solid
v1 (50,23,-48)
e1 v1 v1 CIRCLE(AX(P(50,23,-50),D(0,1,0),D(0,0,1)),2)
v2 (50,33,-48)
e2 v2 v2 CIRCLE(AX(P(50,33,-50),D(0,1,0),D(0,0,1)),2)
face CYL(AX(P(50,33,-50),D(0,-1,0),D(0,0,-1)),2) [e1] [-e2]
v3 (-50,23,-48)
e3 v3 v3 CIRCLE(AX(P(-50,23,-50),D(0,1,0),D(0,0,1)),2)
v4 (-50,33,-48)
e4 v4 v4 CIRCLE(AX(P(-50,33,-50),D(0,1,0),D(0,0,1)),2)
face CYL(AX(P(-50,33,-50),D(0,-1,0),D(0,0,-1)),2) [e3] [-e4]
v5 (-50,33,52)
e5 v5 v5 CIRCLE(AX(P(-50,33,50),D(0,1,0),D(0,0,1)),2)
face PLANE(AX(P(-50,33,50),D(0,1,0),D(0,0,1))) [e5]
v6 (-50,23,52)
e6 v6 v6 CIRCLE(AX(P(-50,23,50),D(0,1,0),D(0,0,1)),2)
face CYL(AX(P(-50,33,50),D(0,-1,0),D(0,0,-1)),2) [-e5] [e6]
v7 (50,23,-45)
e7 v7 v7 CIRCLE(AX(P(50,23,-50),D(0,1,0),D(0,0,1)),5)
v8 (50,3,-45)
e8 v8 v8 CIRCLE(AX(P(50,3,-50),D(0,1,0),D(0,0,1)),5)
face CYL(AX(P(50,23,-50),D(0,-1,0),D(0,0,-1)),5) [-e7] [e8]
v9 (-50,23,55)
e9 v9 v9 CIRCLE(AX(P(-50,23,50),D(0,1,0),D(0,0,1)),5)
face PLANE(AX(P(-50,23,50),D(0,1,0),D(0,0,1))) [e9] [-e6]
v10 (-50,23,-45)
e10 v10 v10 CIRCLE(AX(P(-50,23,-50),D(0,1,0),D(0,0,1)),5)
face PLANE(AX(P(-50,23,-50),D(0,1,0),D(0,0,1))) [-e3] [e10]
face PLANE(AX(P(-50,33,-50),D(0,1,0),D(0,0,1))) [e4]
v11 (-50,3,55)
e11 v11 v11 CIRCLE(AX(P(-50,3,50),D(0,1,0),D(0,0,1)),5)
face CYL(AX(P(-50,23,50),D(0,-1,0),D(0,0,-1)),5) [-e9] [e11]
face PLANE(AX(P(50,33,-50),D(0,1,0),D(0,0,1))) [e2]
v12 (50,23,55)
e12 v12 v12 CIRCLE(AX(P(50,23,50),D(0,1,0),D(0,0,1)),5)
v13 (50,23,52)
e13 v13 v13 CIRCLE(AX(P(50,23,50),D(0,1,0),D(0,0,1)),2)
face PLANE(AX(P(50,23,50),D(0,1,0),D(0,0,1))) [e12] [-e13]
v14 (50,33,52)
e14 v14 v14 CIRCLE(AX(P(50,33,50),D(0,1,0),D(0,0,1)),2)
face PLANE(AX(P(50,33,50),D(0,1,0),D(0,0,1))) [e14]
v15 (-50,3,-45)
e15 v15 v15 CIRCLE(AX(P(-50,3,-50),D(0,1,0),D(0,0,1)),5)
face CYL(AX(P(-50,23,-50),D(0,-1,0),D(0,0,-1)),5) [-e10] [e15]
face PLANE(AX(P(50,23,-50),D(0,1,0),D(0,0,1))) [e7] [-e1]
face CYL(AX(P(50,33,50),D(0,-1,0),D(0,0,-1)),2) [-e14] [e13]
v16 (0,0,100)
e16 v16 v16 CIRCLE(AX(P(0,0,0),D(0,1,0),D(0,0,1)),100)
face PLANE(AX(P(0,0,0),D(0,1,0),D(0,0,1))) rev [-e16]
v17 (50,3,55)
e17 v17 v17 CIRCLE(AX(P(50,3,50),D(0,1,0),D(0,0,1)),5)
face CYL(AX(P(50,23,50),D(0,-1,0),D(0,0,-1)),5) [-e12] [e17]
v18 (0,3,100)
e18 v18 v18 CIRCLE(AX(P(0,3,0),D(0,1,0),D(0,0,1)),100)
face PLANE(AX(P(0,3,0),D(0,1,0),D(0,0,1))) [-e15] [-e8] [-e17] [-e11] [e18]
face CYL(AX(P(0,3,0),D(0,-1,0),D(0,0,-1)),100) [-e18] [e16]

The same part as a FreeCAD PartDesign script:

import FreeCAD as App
import Part
import Sketcher

doc = App.newDocument("Part")
body = doc.addObject("PartDesign::Body", "Body")

# Sketch on XZ plane
sketch1 = doc.addObject("Sketcher::SketchObject", "Sketch")
body.addObject(sketch1)
sketch1.AttachmentSupport = (doc.XZ_Plane, [""])
sketch1.MapMode = "FlatFace"
sketch1.addGeometry(Part.Circle(App.Vector(0, 0, 0), App.Vector(0, 0, 1), 100), False)
sketch1.addConstraint(Sketcher.Constraint("Coincident", 0, 3, -1, 1))
sketch1.addConstraint(Sketcher.Constraint("Diameter", 0, 200.0))
pad1 = doc.addObject("PartDesign::Pad", "Pad")
body.addObject(pad1)
pad1.Profile = sketch1
pad1.Length = 3
pad1.Reversed = True

# Sketch on XZ plane
sketch2 = doc.addObject("Sketcher::SketchObject", "Sketch001")
body.addObject(sketch2)
sketch2.AttachmentSupport = (doc.XZ_Plane, [""])
sketch2.MapMode = "FlatFace"
sketch2.AttachmentOffset = App.Placement(App.Vector(0, 0, -3), App.Rotation())
sketch2.addGeometry(Part.Circle(App.Vector(-50, -50, 0), App.Vector(0, 0, 1), 5), False)
sketch2.addGeometry(Part.Circle(App.Vector(50, -50, 0), App.Vector(0, 0, 1), 5), False)
sketch2.addGeometry(Part.Circle(App.Vector(50, 50, 0), App.Vector(0, 0, 1), 5), False)
sketch2.addGeometry(Part.Circle(App.Vector(-50, 50, 0), App.Vector(0, 0, 1), 5), False)
sketch2.addConstraint(Sketcher.Constraint("Equal", 0, 1))
sketch2.addConstraint(Sketcher.Constraint("Equal", 1, 2))
sketch2.addConstraint(Sketcher.Constraint("Equal", 2, 3))
sketch2.addConstraint(Sketcher.Constraint("Symmetric", 0, 3, 2, 3, -1, 1))
sketch2.addConstraint(Sketcher.Constraint("Symmetric", 1, 3, 3, 3, -1, 1))
sketch2.addConstraint(Sketcher.Constraint("Symmetric", 0, 3, 1, 3, -2))
sketch2.addConstraint(Sketcher.Constraint("Diameter", 0, 10.0))
sketch2.addConstraint(Sketcher.Constraint("DistanceX", 0, 3, -1, 1, 50.0))
sketch2.addConstraint(Sketcher.Constraint("DistanceY", 0, 3, -1, 1, 50.0))
pad2 = doc.addObject("PartDesign::Pad", "Pad001")
body.addObject(pad2)
pad2.Profile = sketch2
pad2.Length = 20
pad2.Reversed = True

# Sketch on XZ plane
sketch3 = doc.addObject("Sketcher::SketchObject", "Sketch002")
body.addObject(sketch3)
sketch3.AttachmentSupport = (doc.XZ_Plane, [""])
sketch3.MapMode = "FlatFace"
sketch3.AttachmentOffset = App.Placement(App.Vector(0, 0, -23), App.Rotation())
sketch3.addGeometry(Part.Circle(App.Vector(50, 50, 0), App.Vector(0, 0, 1), 2), False)
sketch3.addGeometry(Part.Circle(App.Vector(-50, 50, 0), App.Vector(0, 0, 1), 2), False)
sketch3.addGeometry(Part.Circle(App.Vector(-50, -50, 0), App.Vector(0, 0, 1), 2), False)
sketch3.addGeometry(Part.Circle(App.Vector(50, -50, 0), App.Vector(0, 0, 1), 2), False)
sketch3.addConstraint(Sketcher.Constraint("Equal", 0, 1))
sketch3.addConstraint(Sketcher.Constraint("Equal", 1, 2))
sketch3.addConstraint(Sketcher.Constraint("Equal", 2, 3))
sketch3.addConstraint(Sketcher.Constraint("Symmetric", 0, 3, 2, 3, -1, 1))
sketch3.addConstraint(Sketcher.Constraint("Symmetric", 1, 3, 3, 3, -1, 1))
sketch3.addConstraint(Sketcher.Constraint("Symmetric", 0, 3, 1, 3, -2))
sketch3.addConstraint(Sketcher.Constraint("Diameter", 0, 4.0))
sketch3.addConstraint(Sketcher.Constraint("DistanceX", -1, 1, 0, 3, 50.0))
sketch3.addConstraint(Sketcher.Constraint("DistanceY", -1, 1, 0, 3, 50.0))
pad3 = doc.addObject("PartDesign::Pad", "Pad002")
body.addObject(pad3)
pad3.Profile = sketch3
pad3.Length = 10
pad3.Reversed = True

doc.recompute()
